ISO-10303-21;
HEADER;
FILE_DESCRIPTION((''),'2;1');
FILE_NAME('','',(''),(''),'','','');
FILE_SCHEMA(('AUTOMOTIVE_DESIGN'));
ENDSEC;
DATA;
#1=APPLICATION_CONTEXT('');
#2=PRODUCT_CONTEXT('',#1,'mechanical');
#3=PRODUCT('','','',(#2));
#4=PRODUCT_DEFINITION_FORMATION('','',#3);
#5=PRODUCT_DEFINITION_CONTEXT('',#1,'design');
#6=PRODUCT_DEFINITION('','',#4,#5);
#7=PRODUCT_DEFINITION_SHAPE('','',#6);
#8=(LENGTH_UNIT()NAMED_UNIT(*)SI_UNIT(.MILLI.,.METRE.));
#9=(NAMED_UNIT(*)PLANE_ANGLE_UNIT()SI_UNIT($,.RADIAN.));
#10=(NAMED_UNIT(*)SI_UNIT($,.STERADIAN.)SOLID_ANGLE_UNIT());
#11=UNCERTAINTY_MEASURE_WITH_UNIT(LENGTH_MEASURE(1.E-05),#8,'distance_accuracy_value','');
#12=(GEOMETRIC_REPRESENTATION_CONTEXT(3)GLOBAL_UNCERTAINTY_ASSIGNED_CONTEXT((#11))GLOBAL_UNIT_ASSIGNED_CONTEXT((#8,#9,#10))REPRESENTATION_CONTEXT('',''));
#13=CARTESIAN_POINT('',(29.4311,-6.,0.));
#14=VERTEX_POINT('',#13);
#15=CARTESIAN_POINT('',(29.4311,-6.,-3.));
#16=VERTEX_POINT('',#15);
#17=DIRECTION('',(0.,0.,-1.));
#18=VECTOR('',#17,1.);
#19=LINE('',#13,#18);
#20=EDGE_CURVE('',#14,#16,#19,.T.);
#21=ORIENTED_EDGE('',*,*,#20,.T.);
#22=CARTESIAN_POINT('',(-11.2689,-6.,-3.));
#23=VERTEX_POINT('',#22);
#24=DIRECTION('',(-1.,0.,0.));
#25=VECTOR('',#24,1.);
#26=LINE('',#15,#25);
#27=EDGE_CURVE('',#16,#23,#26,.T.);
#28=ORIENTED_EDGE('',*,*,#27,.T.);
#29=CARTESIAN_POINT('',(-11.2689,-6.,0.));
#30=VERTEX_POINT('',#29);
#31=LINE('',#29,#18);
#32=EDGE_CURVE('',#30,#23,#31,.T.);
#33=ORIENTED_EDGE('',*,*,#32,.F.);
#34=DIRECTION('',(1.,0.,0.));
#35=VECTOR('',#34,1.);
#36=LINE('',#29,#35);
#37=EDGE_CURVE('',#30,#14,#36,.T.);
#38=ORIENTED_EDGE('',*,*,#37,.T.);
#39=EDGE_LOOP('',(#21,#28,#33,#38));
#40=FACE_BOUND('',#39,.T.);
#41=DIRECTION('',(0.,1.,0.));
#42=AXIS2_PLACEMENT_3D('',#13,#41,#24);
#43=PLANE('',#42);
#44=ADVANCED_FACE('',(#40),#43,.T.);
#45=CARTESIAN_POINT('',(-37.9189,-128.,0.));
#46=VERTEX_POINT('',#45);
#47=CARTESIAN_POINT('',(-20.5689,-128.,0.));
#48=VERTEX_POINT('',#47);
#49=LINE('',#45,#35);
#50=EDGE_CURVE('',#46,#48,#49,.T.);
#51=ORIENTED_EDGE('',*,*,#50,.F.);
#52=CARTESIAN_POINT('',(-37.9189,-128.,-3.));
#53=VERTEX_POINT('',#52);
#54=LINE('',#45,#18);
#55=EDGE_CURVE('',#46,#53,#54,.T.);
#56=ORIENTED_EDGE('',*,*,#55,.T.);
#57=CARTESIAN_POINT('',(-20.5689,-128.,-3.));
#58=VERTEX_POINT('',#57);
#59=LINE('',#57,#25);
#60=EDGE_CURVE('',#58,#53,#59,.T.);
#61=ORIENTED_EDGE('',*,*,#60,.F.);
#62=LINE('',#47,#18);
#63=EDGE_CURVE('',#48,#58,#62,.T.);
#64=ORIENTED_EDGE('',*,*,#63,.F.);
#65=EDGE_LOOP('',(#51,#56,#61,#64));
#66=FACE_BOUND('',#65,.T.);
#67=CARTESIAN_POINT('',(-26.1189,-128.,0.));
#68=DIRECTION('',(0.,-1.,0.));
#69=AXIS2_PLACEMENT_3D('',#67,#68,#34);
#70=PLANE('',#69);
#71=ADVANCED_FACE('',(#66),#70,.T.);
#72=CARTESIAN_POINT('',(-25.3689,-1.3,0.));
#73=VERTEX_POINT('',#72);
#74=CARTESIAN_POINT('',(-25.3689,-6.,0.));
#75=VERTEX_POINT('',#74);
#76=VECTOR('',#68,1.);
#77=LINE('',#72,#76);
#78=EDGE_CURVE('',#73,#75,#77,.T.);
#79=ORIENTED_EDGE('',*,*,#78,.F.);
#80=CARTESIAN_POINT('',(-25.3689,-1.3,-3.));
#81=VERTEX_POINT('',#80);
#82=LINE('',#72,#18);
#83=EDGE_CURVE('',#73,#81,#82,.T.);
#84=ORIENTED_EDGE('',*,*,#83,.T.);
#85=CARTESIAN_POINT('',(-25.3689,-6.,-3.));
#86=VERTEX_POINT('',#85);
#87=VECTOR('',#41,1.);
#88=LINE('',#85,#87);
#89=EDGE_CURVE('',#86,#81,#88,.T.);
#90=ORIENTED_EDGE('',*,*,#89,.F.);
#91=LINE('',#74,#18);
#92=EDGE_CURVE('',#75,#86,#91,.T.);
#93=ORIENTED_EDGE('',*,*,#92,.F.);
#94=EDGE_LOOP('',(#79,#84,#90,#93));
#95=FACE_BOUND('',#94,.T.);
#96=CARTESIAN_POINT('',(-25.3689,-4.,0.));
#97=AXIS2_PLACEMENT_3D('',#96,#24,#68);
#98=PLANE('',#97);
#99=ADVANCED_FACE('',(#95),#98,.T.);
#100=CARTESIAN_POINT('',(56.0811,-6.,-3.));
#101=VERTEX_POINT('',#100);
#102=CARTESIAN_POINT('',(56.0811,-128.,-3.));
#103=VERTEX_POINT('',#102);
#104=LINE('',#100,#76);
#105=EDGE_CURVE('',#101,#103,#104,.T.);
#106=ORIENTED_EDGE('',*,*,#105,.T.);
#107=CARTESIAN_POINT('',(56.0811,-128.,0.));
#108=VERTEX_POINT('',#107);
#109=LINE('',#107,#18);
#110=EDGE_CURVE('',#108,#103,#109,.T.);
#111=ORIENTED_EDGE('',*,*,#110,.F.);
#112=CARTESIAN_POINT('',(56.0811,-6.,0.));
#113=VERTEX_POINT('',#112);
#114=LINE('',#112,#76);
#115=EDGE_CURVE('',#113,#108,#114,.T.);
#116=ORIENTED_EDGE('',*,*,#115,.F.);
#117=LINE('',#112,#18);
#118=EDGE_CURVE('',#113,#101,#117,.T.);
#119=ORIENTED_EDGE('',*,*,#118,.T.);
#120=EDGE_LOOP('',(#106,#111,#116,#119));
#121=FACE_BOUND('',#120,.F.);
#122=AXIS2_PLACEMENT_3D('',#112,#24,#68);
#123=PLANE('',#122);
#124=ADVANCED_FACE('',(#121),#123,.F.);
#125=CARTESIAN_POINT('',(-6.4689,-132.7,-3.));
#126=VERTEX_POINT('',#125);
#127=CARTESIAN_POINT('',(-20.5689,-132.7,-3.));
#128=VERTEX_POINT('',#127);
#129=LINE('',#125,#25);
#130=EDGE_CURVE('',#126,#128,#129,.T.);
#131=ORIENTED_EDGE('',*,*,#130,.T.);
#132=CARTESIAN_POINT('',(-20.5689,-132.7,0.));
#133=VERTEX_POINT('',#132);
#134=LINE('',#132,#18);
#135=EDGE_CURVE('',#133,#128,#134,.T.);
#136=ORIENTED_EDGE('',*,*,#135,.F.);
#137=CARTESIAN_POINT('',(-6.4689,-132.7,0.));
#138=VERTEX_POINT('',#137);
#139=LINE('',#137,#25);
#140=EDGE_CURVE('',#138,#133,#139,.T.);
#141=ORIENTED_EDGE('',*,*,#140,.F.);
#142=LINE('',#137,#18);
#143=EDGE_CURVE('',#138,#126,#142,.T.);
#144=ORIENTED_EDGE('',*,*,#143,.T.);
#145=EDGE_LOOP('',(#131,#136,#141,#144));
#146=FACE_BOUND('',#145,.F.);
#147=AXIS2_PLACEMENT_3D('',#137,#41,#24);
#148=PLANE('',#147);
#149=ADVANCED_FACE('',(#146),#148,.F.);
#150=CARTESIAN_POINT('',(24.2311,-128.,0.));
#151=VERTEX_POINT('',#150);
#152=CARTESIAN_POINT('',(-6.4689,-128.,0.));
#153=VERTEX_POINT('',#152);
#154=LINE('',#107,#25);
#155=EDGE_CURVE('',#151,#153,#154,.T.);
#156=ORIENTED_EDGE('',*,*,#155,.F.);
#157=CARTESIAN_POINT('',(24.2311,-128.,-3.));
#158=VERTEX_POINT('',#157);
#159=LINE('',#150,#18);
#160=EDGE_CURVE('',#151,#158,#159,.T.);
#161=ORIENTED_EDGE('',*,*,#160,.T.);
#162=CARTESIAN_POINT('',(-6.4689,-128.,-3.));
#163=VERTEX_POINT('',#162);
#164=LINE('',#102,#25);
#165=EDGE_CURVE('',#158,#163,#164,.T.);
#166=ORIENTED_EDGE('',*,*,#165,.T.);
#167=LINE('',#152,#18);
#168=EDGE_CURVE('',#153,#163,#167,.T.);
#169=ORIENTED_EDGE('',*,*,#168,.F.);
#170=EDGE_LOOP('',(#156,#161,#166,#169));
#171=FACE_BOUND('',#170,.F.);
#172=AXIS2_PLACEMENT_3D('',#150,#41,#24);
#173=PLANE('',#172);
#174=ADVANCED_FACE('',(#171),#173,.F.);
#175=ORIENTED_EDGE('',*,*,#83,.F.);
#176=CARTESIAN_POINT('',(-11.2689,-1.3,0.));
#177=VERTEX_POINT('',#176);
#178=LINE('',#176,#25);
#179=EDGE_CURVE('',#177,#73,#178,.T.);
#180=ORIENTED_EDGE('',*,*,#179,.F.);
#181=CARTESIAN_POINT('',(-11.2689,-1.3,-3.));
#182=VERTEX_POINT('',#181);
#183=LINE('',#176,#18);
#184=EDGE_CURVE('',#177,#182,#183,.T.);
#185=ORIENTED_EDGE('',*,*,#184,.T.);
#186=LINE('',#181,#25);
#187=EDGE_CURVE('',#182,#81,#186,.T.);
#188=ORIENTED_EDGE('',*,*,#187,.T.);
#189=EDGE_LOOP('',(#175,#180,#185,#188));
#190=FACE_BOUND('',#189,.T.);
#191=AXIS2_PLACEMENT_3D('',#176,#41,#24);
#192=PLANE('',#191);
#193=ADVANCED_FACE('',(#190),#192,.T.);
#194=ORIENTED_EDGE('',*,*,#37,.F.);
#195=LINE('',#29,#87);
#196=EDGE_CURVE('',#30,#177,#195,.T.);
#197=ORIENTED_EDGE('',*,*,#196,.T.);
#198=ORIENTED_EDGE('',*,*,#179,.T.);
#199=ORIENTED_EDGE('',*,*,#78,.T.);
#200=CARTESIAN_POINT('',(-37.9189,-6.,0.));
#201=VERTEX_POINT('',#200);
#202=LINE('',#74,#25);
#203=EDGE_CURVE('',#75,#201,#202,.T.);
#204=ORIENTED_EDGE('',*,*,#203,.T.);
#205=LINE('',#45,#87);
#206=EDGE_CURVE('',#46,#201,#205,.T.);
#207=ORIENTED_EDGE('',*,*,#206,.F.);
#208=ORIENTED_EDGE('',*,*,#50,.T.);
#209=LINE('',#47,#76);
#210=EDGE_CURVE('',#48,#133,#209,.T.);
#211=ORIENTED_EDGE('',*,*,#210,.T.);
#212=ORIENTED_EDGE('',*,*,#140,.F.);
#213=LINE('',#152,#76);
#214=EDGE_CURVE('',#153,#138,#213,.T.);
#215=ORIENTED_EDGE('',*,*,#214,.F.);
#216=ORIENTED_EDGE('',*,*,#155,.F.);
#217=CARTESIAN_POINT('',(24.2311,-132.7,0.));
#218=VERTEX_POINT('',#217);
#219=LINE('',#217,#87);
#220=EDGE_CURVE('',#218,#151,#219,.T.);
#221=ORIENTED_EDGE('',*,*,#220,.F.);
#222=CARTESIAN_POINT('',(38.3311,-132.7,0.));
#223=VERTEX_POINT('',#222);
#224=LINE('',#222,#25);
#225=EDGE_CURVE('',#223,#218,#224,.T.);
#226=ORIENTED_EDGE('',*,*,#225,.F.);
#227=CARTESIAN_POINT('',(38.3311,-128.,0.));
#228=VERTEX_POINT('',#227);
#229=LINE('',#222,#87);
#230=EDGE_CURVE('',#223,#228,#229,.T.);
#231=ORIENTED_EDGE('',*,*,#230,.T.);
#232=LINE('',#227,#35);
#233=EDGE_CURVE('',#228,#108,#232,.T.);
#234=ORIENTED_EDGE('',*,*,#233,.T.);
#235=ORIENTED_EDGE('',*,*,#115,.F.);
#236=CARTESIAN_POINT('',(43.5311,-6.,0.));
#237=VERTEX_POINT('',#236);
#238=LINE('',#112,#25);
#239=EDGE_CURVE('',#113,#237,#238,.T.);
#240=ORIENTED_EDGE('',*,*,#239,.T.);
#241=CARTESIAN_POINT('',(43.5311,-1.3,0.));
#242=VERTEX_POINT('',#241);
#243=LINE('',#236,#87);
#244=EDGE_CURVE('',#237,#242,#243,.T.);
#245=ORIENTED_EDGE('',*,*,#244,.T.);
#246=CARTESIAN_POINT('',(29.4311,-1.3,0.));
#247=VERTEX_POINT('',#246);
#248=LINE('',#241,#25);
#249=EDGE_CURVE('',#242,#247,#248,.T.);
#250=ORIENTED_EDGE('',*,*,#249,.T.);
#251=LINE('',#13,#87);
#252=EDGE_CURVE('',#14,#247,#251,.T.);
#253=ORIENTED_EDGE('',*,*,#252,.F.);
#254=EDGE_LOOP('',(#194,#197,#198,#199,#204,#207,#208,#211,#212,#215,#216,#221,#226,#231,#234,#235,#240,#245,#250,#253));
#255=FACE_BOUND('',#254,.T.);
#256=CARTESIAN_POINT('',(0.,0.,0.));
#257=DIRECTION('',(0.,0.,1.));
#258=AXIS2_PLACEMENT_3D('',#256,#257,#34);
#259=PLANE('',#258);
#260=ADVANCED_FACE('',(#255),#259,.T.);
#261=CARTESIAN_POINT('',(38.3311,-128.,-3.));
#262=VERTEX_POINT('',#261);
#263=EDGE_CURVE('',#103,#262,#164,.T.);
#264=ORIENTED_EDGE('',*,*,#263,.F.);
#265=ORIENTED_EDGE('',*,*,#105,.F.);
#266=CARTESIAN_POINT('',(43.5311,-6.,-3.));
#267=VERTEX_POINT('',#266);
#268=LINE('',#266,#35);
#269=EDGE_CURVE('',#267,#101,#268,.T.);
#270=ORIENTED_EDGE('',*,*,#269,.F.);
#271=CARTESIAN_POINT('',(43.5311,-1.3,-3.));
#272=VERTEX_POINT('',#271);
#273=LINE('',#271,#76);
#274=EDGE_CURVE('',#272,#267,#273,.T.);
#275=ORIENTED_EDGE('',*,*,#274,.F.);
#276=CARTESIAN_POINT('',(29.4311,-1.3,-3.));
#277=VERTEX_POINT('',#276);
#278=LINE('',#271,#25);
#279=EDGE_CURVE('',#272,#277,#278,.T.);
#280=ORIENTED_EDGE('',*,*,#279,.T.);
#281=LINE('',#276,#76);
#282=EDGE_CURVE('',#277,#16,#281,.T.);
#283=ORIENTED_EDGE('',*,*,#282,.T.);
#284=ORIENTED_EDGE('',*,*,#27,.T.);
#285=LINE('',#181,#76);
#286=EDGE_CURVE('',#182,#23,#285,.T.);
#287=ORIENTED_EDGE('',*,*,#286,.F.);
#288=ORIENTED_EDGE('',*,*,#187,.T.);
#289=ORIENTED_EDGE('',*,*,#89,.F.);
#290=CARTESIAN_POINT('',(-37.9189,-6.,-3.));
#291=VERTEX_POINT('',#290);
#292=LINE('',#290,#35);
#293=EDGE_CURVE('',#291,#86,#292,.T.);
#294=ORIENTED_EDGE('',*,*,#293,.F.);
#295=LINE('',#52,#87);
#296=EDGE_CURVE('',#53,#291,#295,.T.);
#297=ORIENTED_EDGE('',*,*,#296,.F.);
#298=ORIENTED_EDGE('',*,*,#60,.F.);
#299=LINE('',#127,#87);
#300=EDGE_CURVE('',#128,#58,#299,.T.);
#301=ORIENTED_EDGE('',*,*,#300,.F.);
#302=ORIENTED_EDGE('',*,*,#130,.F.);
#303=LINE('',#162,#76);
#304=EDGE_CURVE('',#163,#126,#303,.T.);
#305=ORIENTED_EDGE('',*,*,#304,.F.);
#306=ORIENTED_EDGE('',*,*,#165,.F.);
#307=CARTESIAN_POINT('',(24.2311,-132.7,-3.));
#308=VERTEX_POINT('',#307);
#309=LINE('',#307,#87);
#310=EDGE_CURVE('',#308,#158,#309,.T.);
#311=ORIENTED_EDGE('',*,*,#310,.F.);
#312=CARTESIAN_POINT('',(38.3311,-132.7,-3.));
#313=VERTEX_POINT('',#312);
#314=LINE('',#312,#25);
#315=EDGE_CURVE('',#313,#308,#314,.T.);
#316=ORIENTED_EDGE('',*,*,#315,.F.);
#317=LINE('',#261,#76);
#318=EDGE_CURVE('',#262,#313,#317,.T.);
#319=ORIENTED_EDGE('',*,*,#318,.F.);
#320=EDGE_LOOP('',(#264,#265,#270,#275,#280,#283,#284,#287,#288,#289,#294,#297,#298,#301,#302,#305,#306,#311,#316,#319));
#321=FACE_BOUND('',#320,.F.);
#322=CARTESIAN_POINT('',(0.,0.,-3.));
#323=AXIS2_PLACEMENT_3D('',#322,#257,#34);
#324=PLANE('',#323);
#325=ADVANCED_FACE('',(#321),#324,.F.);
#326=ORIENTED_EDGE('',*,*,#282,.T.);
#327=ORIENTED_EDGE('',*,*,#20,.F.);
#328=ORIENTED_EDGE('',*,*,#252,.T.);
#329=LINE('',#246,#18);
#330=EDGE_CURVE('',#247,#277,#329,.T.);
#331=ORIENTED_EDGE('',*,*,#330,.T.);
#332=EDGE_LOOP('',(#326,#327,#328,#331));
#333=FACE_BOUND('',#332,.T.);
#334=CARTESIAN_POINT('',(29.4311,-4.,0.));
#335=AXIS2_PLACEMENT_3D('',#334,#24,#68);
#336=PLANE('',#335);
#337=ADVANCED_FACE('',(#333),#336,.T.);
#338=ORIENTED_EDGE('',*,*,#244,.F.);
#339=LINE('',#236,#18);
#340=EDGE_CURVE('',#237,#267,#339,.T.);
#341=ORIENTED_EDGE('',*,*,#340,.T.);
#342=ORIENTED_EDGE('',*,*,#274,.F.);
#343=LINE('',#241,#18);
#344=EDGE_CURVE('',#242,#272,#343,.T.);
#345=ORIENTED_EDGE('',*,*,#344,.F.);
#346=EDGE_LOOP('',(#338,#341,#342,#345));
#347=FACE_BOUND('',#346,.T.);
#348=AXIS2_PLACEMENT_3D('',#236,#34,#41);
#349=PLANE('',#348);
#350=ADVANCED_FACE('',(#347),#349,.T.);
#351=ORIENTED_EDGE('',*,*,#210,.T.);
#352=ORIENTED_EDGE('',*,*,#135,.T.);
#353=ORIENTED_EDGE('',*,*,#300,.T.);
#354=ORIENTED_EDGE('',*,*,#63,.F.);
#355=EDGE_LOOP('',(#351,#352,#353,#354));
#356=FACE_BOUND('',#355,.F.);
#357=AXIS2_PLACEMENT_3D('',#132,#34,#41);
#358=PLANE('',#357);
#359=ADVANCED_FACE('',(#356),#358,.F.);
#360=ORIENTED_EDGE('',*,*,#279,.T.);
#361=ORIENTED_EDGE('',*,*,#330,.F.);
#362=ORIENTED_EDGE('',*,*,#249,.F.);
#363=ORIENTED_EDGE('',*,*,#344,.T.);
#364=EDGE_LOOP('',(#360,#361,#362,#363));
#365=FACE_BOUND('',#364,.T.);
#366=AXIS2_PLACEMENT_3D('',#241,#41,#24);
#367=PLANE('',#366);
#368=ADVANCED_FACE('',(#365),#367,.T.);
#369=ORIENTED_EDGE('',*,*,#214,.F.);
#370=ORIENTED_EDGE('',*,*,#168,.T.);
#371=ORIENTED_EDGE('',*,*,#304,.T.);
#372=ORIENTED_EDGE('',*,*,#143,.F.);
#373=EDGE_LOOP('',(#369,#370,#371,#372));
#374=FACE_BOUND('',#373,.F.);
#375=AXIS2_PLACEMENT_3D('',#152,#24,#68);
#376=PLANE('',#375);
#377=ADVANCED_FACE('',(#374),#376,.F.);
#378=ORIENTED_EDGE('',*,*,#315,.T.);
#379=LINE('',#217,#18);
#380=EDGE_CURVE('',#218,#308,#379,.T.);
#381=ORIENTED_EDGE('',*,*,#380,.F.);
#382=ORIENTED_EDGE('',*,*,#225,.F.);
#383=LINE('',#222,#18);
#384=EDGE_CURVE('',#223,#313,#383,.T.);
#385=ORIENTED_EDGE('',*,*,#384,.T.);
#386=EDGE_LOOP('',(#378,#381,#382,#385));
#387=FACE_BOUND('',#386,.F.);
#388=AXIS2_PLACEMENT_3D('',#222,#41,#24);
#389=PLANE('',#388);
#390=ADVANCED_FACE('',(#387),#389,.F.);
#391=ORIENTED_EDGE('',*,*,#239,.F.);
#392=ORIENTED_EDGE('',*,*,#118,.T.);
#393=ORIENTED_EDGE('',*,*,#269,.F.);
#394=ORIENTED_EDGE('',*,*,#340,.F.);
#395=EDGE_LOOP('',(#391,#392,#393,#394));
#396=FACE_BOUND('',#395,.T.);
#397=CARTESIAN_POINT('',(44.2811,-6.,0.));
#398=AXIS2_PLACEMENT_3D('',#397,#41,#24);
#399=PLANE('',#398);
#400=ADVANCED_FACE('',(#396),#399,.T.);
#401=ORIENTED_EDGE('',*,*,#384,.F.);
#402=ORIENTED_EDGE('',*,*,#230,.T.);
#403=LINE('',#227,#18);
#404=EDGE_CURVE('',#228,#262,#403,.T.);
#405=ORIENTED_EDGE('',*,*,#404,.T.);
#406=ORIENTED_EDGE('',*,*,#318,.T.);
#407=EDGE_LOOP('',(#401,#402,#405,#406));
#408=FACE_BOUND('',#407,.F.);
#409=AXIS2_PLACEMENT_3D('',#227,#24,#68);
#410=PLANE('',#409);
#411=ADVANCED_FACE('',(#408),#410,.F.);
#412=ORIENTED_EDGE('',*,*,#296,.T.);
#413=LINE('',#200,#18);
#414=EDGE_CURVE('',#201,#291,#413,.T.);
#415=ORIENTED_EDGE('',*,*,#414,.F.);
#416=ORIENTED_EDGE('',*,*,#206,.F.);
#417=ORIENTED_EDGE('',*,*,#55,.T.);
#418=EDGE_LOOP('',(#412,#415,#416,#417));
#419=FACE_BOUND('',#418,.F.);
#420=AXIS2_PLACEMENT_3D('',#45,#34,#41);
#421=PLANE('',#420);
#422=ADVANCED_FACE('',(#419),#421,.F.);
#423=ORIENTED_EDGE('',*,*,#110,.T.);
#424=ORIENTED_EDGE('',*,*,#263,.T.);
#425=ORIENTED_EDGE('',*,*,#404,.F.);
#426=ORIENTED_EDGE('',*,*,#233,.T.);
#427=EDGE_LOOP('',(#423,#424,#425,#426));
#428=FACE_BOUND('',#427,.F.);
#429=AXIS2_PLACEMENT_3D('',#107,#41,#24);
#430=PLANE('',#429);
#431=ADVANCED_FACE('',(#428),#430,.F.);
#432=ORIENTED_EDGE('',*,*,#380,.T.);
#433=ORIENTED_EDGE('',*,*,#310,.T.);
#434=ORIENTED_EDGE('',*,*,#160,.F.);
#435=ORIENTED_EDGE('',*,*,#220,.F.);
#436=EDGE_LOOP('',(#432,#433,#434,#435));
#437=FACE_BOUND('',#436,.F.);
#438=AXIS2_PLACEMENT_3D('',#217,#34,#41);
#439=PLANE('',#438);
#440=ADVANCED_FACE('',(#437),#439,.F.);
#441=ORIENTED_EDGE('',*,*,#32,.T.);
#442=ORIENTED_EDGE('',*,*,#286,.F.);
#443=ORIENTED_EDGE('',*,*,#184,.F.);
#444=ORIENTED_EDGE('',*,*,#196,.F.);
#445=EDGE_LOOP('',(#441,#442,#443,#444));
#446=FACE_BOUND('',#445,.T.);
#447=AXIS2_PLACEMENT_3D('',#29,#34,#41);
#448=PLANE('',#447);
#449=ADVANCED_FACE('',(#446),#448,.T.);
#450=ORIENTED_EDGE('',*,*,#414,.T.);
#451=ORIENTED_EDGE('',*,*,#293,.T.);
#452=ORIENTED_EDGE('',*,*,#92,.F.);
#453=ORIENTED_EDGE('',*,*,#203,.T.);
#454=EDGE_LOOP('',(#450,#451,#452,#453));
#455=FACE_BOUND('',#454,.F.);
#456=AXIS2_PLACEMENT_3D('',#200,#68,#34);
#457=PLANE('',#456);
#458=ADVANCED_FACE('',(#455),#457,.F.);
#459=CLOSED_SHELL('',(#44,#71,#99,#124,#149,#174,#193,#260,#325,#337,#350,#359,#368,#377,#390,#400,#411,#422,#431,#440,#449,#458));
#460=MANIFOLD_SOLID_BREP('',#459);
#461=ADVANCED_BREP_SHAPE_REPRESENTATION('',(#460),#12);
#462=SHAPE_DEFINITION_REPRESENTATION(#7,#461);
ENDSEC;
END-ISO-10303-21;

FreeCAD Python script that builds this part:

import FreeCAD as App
import Part
import Sketcher

doc = App.newDocument("Part")
params = doc.addObject("Spreadsheet::Sheet", "Params")
for row, (alias, value) in enumerate([
    ("sketch1_height", "122 mm"),
    ("sketch1_width", "14.1 mm"),
    ("sketch1_height2", "4.7 mm"),
    ("sketch1_width2", "40.7 mm"),
    ("sketch1_width3", "30.7 mm"),
    ("pad1_length", "3 mm"),
], start=1):
    params.set(f"A{row}", alias)
    params.set(f"B{row}", "=" + value)
    params.setAlias(f"B{row}", alias)

body = doc.addObject("PartDesign::Body", "Body")

# Sketch on XY plane
sketch1 = body.newObject("Sketcher::SketchObject", "Sketch")
sketch1.AttachmentSupport = (doc.getObject("XY_Plane"), [""])
sketch1.MapMode = "FlatFace"
sketch1.addGeometry([
    Part.LineSegment(App.Vector(29.4, -6, 0), App.Vector(-11.3, -6, 0)),  # 0
    Part.LineSegment(App.Vector(-11.3, -6, 0), App.Vector(-11.3, -1.3, 0)),  # 1
    Part.LineSegment(App.Vector(-11.3, -1.3, 0), App.Vector(-25.4, -1.3, 0)),  # 2
    Part.LineSegment(App.Vector(-25.4, -1.3, 0), App.Vector(-25.4, -6, 0)),  # 3
    Part.LineSegment(App.Vector(-25.4, -6, 0), App.Vector(-37.9, -6, 0)),  # 4
    Part.LineSegment(App.Vector(-37.9, -6, 0), App.Vector(-37.9, -128, 0)),  # 5
    Part.LineSegment(App.Vector(-37.9, -128, 0), App.Vector(-20.6, -128, 0)),  # 6
    Part.LineSegment(App.Vector(-20.6, -128, 0), App.Vector(-20.6, -132.7, 0)),  # 7
    Part.LineSegment(App.Vector(-20.6, -132.7, 0), App.Vector(-6.5, -132.7, 0)),  # 8
    Part.LineSegment(App.Vector(-6.5, -132.7, 0), App.Vector(-6.5, -128, 0)),  # 9
    Part.LineSegment(App.Vector(-6.5, -128, 0), App.Vector(24.2, -128, 0)),  # 10
    Part.LineSegment(App.Vector(24.2, -128, 0), App.Vector(24.2, -132.7, 0)),  # 11
    Part.LineSegment(App.Vector(24.2, -132.7, 0), App.Vector(38.3, -132.7, 0)),  # 12
    Part.LineSegment(App.Vector(38.3, -132.7, 0), App.Vector(38.3, -128, 0)),  # 13
    Part.LineSegment(App.Vector(38.3, -128, 0), App.Vector(56.1, -128, 0)),  # 14
    Part.LineSegment(App.Vector(56.1, -128, 0), App.Vector(56.1, -6, 0)),  # 15
    Part.LineSegment(App.Vector(56.1, -6, 0), App.Vector(43.5, -6, 0)),  # 16
    Part.LineSegment(App.Vector(43.5, -6, 0), App.Vector(43.5, -1.3, 0)),  # 17
    Part.LineSegment(App.Vector(43.5, -1.3, 0), App.Vector(29.4, -1.3, 0)),  # 18
    Part.LineSegment(App.Vector(29.4, -1.3, 0), App.Vector(29.4, -6, 0)),  # 19
], False)
sketch1.addConstraint([
    Sketcher.Constraint("Coincident", 0, 2, 1, 1),
    Sketcher.Constraint("Coincident", 1, 2, 2, 1),
    Sketcher.Constraint("Coincident", 2, 2, 3, 1),
    Sketcher.Constraint("Coincident", 3, 2, 4, 1),
    Sketcher.Constraint("Coincident", 4, 2, 5, 1),
    Sketcher.Constraint("Coincident", 5, 2, 6, 1),
    Sketcher.Constraint("Coincident", 6, 2, 7, 1),
    Sketcher.Constraint("Coincident", 7, 2, 8, 1),
    Sketcher.Constraint("Coincident", 8, 2, 9, 1),
    Sketcher.Constraint("Coincident", 9, 2, 10, 1),
    Sketcher.Constraint("Coincident", 10, 2, 11, 1),
    Sketcher.Constraint("Coincident", 11, 2, 12, 1),
    Sketcher.Constraint("Coincident", 12, 2, 13, 1),
    Sketcher.Constraint("Coincident", 13, 2, 14, 1),
    Sketcher.Constraint("Coincident", 14, 2, 15, 1),
    Sketcher.Constraint("Coincident", 15, 2, 16, 1),
    Sketcher.Constraint("Coincident", 16, 2, 17, 1),
    Sketcher.Constraint("Coincident", 17, 2, 18, 1),
    Sketcher.Constraint("Coincident", 18, 2, 19, 1),
    Sketcher.Constraint("Coincident", 19, 2, 0, 1),
    Sketcher.Constraint("Horizontal", 0),
    Sketcher.Constraint("Vertical", 1),
    Sketcher.Constraint("Horizontal", 2),
    Sketcher.Constraint("Vertical", 3),
    Sketcher.Constraint("Horizontal", 4),
    Sketcher.Constraint("Vertical", 5),
    Sketcher.Constraint("Horizontal", 6),
    Sketcher.Constraint("Vertical", 7),
    Sketcher.Constraint("Horizontal", 8),
    Sketcher.Constraint("Vertical", 9),
    Sketcher.Constraint("Horizontal", 10),
    Sketcher.Constraint("Vertical", 11),
    Sketcher.Constraint("Horizontal", 12),
    Sketcher.Constraint("Vertical", 13),
    Sketcher.Constraint("Horizontal", 14),
    Sketcher.Constraint("Vertical", 15),
    Sketcher.Constraint("Horizontal", 16),
    Sketcher.Constraint("Vertical", 17),
    Sketcher.Constraint("Horizontal", 18),
    Sketcher.Constraint("Vertical", 19),
    Sketcher.Constraint("Horizontal", 0, 2, 3, 2),
    Sketcher.Constraint("Horizontal", 6, 2, 9, 2),
    Sketcher.Constraint("Horizontal", 8, 2, 11, 2),
    Sketcher.Constraint("Horizontal", 10, 2, 13, 2),
    Sketcher.Constraint("Horizontal", 4, 2, 15, 2),
    Sketcher.Constraint("Horizontal", 2, 2, 17, 2),
    Sketcher.Constraint("Equal", 2, 8),
    Sketcher.Constraint("Equal", 8, 12),
    Sketcher.Constraint("Equal", 4, 16),
    Sketcher.Constraint("Equal", 12, 18),
    Sketcher.Constraint("Equal", 3, 7),
    Sketcher.Constraint("DistanceY", 5, 2, 5, 1, 122.0),
    Sketcher.Constraint("DistanceX", 2, 2, 2, 1, 14.1),
    Sketcher.Constraint("DistanceY", 1, 1, 1, 2, 4.7),
    Sketcher.Constraint("DistanceX", 4, 2, 15, 2, 94.0),
    Sketcher.Constraint("DistanceX", 0, 2, 0, 1, 40.7),
    Sketcher.Constraint("DistanceX", 10, 1, 10, 2, 30.7),
    Sketcher.Constraint("DistanceY", 0, 2, -1, 1, 6.0),
    Sketcher.Constraint("DistanceX", 6, 1, 6, 2, 17.35),
    Sketcher.Constraint("DistanceX", 0, 2, -1, 1, 11.269),
])
sketch1.setExpression("Constraints[51]", "Params.sketch1_height")
sketch1.setExpression("Constraints[52]", "Params.sketch1_width")
sketch1.setExpression("Constraints[53]", "Params.sketch1_height2")
sketch1.setExpression("Constraints[55]", "Params.sketch1_width2")
sketch1.setExpression("Constraints[56]", "Params.sketch1_width3")
pad1 = body.newObject("PartDesign::Pad", "Pad")
pad1.Profile = sketch1
pad1.setExpression("Length", "Params.pad1_length")
pad1.Reversed = True

doc.recompute()
